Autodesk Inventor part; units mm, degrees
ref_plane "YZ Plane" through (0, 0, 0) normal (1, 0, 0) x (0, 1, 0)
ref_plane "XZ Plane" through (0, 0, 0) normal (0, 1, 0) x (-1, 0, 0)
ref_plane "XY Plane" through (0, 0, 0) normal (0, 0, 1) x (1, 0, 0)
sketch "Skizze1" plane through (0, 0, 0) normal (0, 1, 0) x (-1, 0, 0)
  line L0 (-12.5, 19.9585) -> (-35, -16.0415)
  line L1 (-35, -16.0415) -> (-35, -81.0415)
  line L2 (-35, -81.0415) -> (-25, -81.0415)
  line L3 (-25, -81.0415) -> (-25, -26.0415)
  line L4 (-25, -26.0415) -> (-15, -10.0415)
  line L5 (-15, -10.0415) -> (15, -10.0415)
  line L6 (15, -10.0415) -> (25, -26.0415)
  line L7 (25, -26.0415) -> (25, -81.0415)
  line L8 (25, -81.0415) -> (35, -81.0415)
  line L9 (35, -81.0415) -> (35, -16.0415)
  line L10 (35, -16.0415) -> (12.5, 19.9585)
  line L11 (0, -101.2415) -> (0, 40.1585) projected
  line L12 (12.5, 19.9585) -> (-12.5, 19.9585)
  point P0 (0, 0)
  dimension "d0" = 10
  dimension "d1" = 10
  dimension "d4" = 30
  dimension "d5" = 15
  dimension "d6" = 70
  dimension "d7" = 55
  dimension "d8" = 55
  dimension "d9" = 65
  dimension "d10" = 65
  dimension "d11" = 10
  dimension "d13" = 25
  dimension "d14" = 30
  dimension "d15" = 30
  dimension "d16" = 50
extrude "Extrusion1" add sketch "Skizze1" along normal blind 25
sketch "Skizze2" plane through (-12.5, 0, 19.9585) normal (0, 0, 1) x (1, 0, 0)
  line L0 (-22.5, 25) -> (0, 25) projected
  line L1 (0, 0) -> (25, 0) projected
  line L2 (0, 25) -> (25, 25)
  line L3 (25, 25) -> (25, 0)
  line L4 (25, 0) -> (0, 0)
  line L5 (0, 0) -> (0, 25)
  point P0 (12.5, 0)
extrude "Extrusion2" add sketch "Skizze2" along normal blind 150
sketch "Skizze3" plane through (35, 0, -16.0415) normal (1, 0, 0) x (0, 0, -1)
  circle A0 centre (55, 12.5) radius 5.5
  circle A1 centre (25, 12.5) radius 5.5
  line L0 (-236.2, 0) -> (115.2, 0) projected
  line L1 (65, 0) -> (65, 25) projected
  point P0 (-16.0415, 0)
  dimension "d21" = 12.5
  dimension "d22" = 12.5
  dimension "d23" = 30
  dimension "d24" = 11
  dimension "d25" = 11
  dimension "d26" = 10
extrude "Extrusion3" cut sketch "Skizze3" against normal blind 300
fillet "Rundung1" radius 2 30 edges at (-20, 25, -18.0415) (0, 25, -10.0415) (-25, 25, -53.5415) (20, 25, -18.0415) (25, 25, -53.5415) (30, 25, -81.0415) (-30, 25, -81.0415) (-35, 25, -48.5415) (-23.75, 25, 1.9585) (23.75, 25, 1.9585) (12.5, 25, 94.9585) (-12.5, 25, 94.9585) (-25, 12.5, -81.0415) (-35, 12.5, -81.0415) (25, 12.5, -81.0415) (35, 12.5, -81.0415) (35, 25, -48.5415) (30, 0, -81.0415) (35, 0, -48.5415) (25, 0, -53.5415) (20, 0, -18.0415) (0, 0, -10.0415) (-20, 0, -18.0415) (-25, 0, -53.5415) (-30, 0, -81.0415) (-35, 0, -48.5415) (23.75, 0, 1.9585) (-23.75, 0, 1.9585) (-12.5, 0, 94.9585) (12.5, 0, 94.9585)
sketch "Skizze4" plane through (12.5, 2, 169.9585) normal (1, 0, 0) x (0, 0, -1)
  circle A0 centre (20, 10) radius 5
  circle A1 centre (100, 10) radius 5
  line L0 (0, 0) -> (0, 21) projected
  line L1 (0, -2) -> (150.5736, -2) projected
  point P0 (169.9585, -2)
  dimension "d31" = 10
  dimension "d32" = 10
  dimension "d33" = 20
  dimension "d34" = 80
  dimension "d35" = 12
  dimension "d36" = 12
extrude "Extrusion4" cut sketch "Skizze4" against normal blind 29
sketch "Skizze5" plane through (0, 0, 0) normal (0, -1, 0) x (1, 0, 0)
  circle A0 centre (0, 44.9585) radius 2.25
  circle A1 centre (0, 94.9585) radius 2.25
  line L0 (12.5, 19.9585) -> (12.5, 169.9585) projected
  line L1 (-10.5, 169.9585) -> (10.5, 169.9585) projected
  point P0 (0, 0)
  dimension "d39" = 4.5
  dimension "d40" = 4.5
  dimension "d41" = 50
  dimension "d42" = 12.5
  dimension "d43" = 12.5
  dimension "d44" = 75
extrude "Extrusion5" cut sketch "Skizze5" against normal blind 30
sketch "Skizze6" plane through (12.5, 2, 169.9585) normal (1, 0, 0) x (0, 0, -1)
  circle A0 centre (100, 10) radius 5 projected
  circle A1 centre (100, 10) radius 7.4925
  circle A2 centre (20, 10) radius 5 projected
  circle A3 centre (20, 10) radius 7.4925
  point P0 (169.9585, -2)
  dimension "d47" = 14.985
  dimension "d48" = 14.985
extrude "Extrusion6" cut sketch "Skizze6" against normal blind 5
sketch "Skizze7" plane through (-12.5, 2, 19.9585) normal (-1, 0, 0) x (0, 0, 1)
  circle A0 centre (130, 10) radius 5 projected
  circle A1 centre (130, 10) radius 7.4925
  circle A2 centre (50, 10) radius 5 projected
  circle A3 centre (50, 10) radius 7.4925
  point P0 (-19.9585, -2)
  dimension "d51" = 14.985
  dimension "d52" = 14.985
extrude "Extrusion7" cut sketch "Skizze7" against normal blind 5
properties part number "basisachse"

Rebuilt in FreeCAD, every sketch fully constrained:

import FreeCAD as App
import Part
import Sketcher


def edges_at(feature, points):
    """Names of the edges that pass closest to the given points."""
    edges = feature.Shape.Edges
    near = lambda p: min(range(len(edges)), key=lambda i: edges[i].distToShape(Part.Vertex(*p))[0])
    return sorted({f"Edge{near(p) + 1}" for p in points})

doc = App.newDocument("Part")
params = doc.addObject("Spreadsheet::Sheet", "Params")
for row, (alias, value) in enumerate([
    ("sketch1_width", "10 mm"),
    ("sketch1_width2", "30 mm"),
    ("sketch1_width3", "25 mm"),
    ("sketch1_height", "65 mm"),
    ("sketch1_height2", "55 mm"),
    ("pad1_length", "25 mm"),
    ("sketch2_width", "25 mm"),
    ("pad2_length", "150 mm"),
    ("sketch3_diameter", "11 mm"),
    ("pocket1_length", "300 mm"),
    ("fillet_radius", "2 mm"),
    ("sketch4_diameter", "10 mm"),
    ("pocket2_length", "29 mm"),
    ("sketch5_diameter", "4.5 mm"),
    ("pocket3_length", "30 mm"),
    ("sketch6_diameter", "10 mm"),
    ("pocket4_length", "5 mm"),
    ("sketch7_diameter", "10 mm"),
    ("pocket5_length", "5 mm"),
], start=1):
    params.set(f"A{row}", alias)
    params.set(f"B{row}", "=" + value)
    params.setAlias(f"B{row}", alias)

body = doc.addObject("PartDesign::Body", "Body")

# Sketch on XZ plane
sketch1 = doc.addObject("Sketcher::SketchObject", "Sketch")
body.addObject(sketch1)
sketch1.AttachmentSupport = (doc.XZ_Plane, [""])
sketch1.MapMode = "FlatFace"
sketch1.addGeometry([
    Part.LineSegment(App.Vector(12.5, 19.9585, 0), App.Vector(35, -16.0415, 0)),  # 0
    Part.LineSegment(App.Vector(35, -16.0415, 0), App.Vector(35, -81.0415, 0)),  # 1
    Part.LineSegment(App.Vector(35, -81.0415, 0), App.Vector(25, -81.0415, 0)),  # 2
    Part.LineSegment(App.Vector(25, -81.0415, 0), App.Vector(25, -26.0415, 0)),  # 3
    Part.LineSegment(App.Vector(25, -26.0415, 0), App.Vector(15, -10.0415, 0)),  # 4
    Part.LineSegment(App.Vector(15, -10.0415, 0), App.Vector(-15, -10.0415, 0)),  # 5
    Part.LineSegment(App.Vector(-15, -10.0415, 0), App.Vector(-25, -26.0415, 0)),  # 6
    Part.LineSegment(App.Vector(-25, -26.0415, 0), App.Vector(-25, -81.0415, 0)),  # 7
    Part.LineSegment(App.Vector(-25, -81.0415, 0), App.Vector(-35, -81.0415, 0)),  # 8
    Part.LineSegment(App.Vector(-35, -81.0415, 0), App.Vector(-35, -16.0415, 0)),  # 9
    Part.LineSegment(App.Vector(-35, -16.0415, 0), App.Vector(-12.5, 19.9585, 0)),  # 10
    Part.LineSegment(App.Vector(-12.5, 19.9585, 0), App.Vector(12.5, 19.9585, 0)),  # 11
], False)
sketch1.addConstraint([
    Sketcher.Constraint("Coincident", 0, 2, 1, 1),
    Sketcher.Constraint("Coincident", 1, 2, 2, 1),
    Sketcher.Constraint("Coincident", 2, 2, 3, 1),
    Sketcher.Constraint("Coincident", 3, 2, 4, 1),
    Sketcher.Constraint("Coincident", 4, 2, 5, 1),
    Sketcher.Constraint("Coincident", 5, 2, 6, 1),
    Sketcher.Constraint("Coincident", 6, 2, 7, 1),
    Sketcher.Constraint("Coincident", 7, 2, 8, 1),
    Sketcher.Constraint("Coincident", 8, 2, 9, 1),
    Sketcher.Constraint("Coincident", 9, 2, 10, 1),
    Sketcher.Constraint("Coincident", 10, 2, 11, 1),
    Sketcher.Constraint("Coincident", 11, 2, 0, 1),
    Sketcher.Constraint("Vertical", 1),
    Sketcher.Constraint("Horizontal", 2),
    Sketcher.Constraint("Vertical", 3),
    Sketcher.Constraint("Horizontal", 5),
    Sketcher.Constraint("Vertical", 7),
    Sketcher.Constraint("Horizontal", 8),
    Sketcher.Constraint("Vertical", 9),
    Sketcher.Constraint("Horizontal", 11),
    Sketcher.Constraint("Symmetric", 3, 2, 6, 2, -2),
    Sketcher.Constraint("Symmetric", 1, 2, 8, 2, -2),
    Sketcher.Constraint("Parallel", 0, 4),
    Sketcher.Constraint("Parallel", 6, 10),
    Sketcher.Constraint("Horizontal", 0, 2, 9, 2),
    Sketcher.Constraint("Equal", 4, 6),
    Sketcher.Constraint("DistanceX", 2, 2, 2, 1, 10.0),
    Sketcher.Constraint("DistanceX", 5, 2, 5, 1, 30.0),
    Sketcher.Constraint("DistanceX", 11, 1, 11, 2, 25.0),
    Sketcher.Constraint("DistanceY", 1, 2, 1, 1, 65.0),
    Sketcher.Constraint("DistanceY", 3, 1, 3, 2, 55.0),
    Sketcher.Constraint("DistanceX", -1, 1, 2, 2, 25.0),
    Sketcher.Constraint("DistanceY", 5, 2, 10, 2, 30.0),
    Sketcher.Constraint("DistanceY", 0, 2, -1, 1, 16.0415),
])
sketch1.setExpression("Constraints[26]", "Params.sketch1_width")
sketch1.setExpression("Constraints[27]", "Params.sketch1_width2")
sketch1.setExpression("Constraints[28]", "Params.sketch1_width3")
sketch1.setExpression("Constraints[29]", "Params.sketch1_height")
sketch1.setExpression("Constraints[30]", "Params.sketch1_height2")
pad1 = doc.addObject("PartDesign::Pad", "Pad")
body.addObject(pad1)
pad1.Profile = sketch1
pad1.setExpression("Length", "Params.pad1_length")
pad1.Reversed = True

# Sketch on XY plane
sketch2 = doc.addObject("Sketcher::SketchObject", "Sketch001")
body.addObject(sketch2)
sketch2.AttachmentSupport = (doc.XY_Plane, [""])
sketch2.MapMode = "FlatFace"
sketch2.AttachmentOffset = App.Placement(App.Vector(0, 0, 19.9585), App.Rotation())
sketch2.addGeometry([
    Part.LineSegment(App.Vector(-12.5, 25, 0), App.Vector(-12.5, 0, 0)),
    Part.LineSegment(App.Vector(-12.5, 0, 0), App.Vector(12.5, 0, 0)),
    Part.LineSegment(App.Vector(12.5, 0, 0), App.Vector(12.5, 25, 0)),
    Part.LineSegment(App.Vector(12.5, 25, 0), App.Vector(-12.5, 25, 0)),
], False)
sketch2.addConstraint([
    Sketcher.Constraint("Coincident", 0, 2, 1, 1),
    Sketcher.Constraint("Coincident", 1, 2, 2, 1),
    Sketcher.Constraint("Coincident", 2, 2, 3, 1),
    Sketcher.Constraint("Coincident", 3, 2, 0, 1),
    Sketcher.Constraint("Vertical", 0),
    Sketcher.Constraint("Horizontal", 1),
    Sketcher.Constraint("Vertical", 2),
    Sketcher.Constraint("Horizontal", 3),
    Sketcher.Constraint("Symmetric", 0, 2, 1, 2, -1, 1),
    Sketcher.Constraint("Equal", 3, 0),
    Sketcher.Constraint("DistanceX", 1, 1, 1, 2, 25.0),
])
sketch2.setExpression("Constraints[10]", "Params.sketch2_width")
pad2 = doc.addObject("PartDesign::Pad", "Pad001")
body.addObject(pad2)
pad2.Profile = sketch2
pad2.setExpression("Length", "Params.pad2_length")

# Sketch on YZ plane
sketch3 = doc.addObject("Sketcher::SketchObject", "Sketch002")
body.addObject(sketch3)
sketch3.AttachmentSupport = (doc.YZ_Plane, [""])
sketch3.MapMode = "FlatFace"
sketch3.AttachmentOffset = App.Placement(App.Vector(0, 0, 35), App.Rotation())
sketch3.addGeometry([
    Part.Circle(App.Vector(12.5, -71.0415, 0), App.Vector(0, 0, 1), 5.5),
    Part.Circle(App.Vector(12.5, -41.0415, 0), App.Vector(0, 0, 1), 5.5),
], False)
sketch3.addConstraint([
    Sketcher.Constraint("Equal", 0, 1),
    Sketcher.Constraint("Vertical", 0, 3, 1, 3),
    Sketcher.Constraint("Diameter", 0, 11.0),
    Sketcher.Constraint("DistanceY", 0, 3, 1, 3, 30.0),
    Sketcher.Constraint("DistanceX", -1, 1, 0, 3, 12.5),
    Sketcher.Constraint("DistanceY", 0, 3, -1, 1, 71.0415),
])
sketch3.setExpression("Constraints[2]", "Params.sketch3_diameter")
pocket1 = doc.addObject("PartDesign::Pocket", "Pocket")
body.addObject(pocket1)
pocket1.Profile = sketch3
pocket1.setExpression("Length", "Params.pocket1_length")
doc.recompute()

fillet = doc.addObject("PartDesign::Fillet", "Fillet")
body.addObject(fillet)
fillet.Base = (pocket1, edges_at(pocket1, [
    (-20, 25, -18.041),
    (0, 25, -10.041),
    (-25, 25, -53.541),
    (20, 25, -18.041),
    (25, 25, -53.541),
    (30, 25, -81.041),
    (-30, 25, -81.041),
    (-35, 25, -48.541),
    (-23.75, 25, 1.958),
    (23.75, 25, 1.958),
    (12.5, 25, 94.959),
    (-12.5, 25, 94.959),
    (-25, 12.5, -81.041),
    (-35, 12.5, -81.041),
    (25, 12.5, -81.041),
    (35, 12.5, -81.041),
    (35, 25, -48.541),
    (30, 0, -81.041),
    (35, 0, -48.541),
    (25, 0, -53.541),
    (20, 0, -18.041),
    (0, 0, -10.041),
    (-20, 0, -18.041),
    (-25, 0, -53.541),
    (-30, 0, -81.041),
    (-35, 0, -48.541),
    (23.75, 0, 1.958),
    (-23.75, 0, 1.958),
    (-12.5, 0, 94.959),
    (12.5, 0, 94.959),
]))
fillet.setExpression("Radius", "Params.fillet_radius")

# Sketch on YZ plane
sketch4 = doc.addObject("Sketcher::SketchObject", "Sketch003")
body.addObject(sketch4)
sketch4.AttachmentSupport = (doc.YZ_Plane, [""])
sketch4.MapMode = "FlatFace"
sketch4.AttachmentOffset = App.Placement(App.Vector(0, 0, 12.5), App.Rotation())
sketch4.addGeometry([
    Part.Circle(App.Vector(12, 149.9585, 0), App.Vector(0, 0, 1), 5),
    Part.Circle(App.Vector(12, 69.9585, 0), App.Vector(0, 0, 1), 5),
], False)
sketch4.addConstraint([
    Sketcher.Constraint("Equal", 0, 1),
    Sketcher.Constraint("Vertical", 0, 3, 1, 3),
    Sketcher.Constraint("Diameter", 0, 10.0),
    Sketcher.Constraint("DistanceX", -1, 1, 0, 3, 12.0),
    Sketcher.Constraint("DistanceY", 1, 3, 0, 3, 80.0),
    Sketcher.Constraint("DistanceY", -1, 1, 0, 3, 149.9585),
])
sketch4.setExpression("Constraints[2]", "Params.sketch4_diameter")
pocket2 = doc.addObject("PartDesign::Pocket", "Pocket001")
body.addObject(pocket2)
pocket2.Profile = sketch4
pocket2.setExpression("Length", "Params.pocket2_length")

# Sketch on XZ plane
sketch5 = doc.addObject("Sketcher::SketchObject", "Sketch004")
body.addObject(sketch5)
sketch5.AttachmentSupport = (doc.XZ_Plane, [""])
sketch5.MapMode = "FlatFace"
sketch5.addGeometry([
    Part.Circle(App.Vector(0, 44.9585, 0), App.Vector(0, 0, 1), 2.25),
    Part.Circle(App.Vector(0, 94.9585, 0), App.Vector(0, 0, 1), 2.25),
], False)
sketch5.addConstraint([
    Sketcher.Constraint("Equal", 0, 1),
    Sketcher.Constraint("PointOnObject", 0, 3, -2),
    Sketcher.Constraint("PointOnObject", 1, 3, -2),
    Sketcher.Constraint("Diameter", 0, 4.5),
    Sketcher.Constraint("DistanceY", 0, 3, 1, 3, 50.0),
    Sketcher.Constraint("DistanceY", -1, 1, 0, 3, 44.9585),
])
sketch5.setExpression("Constraints[3]", "Params.sketch5_diameter")
pocket3 = doc.addObject("PartDesign::Pocket", "Pocket002")
body.addObject(pocket3)
pocket3.Profile = sketch5
pocket3.setExpression("Length", "Params.pocket3_length")

# Sketch on YZ plane
sketch6 = doc.addObject("Sketcher::SketchObject", "Sketch005")
body.addObject(sketch6)
sketch6.AttachmentSupport = (doc.YZ_Plane, [""])
sketch6.MapMode = "FlatFace"
sketch6.AttachmentOffset = App.Placement(App.Vector(0, 0, 12.5), App.Rotation())
sketch6.addGeometry([
    Part.Circle(App.Vector(12, 69.9585, 0), App.Vector(0, 0, 1), 7.4925),
    Part.Circle(App.Vector(12, 69.9585, 0), App.Vector(0, 0, 1), 5),
    Part.Circle(App.Vector(12, 149.9585, 0), App.Vector(0, 0, 1), 7.4925),
    Part.Circle(App.Vector(12, 149.9585, 0), App.Vector(0, 0, 1), 5),
], False)
sketch6.addConstraint([
    Sketcher.Constraint("Coincident", 1, 3, 0, 3),
    Sketcher.Constraint("Coincident", 3, 3, 2, 3),
    Sketcher.Constraint("Equal", 0, 2),
    Sketcher.Constraint("Equal", 1, 3),
    Sketcher.Constraint("Vertical", 1, 3, 2, 3),
    Sketcher.Constraint("Diameter", 0, 14.985),
    Sketcher.Constraint("Diameter", 1, 10.0),
    Sketcher.Constraint("DistanceX", -1, 1, 0, 3, 12.0),
    Sketcher.Constraint("DistanceY", 0, 3, 2, 3, 80.0),
    Sketcher.Constraint("DistanceY", -1, 1, 0, 3, 69.9585),
])
sketch6.setExpression("Constraints[6]", "Params.sketch6_diameter")
pocket4 = doc.addObject("PartDesign::Pocket", "Pocket003")
body.addObject(pocket4)
pocket4.Profile = sketch6
pocket4.setExpression("Length", "Params.pocket4_length")

# Sketch on YZ plane
sketch7 = doc.addObject("Sketcher::SketchObject", "Sketch006")
body.addObject(sketch7)
sketch7.AttachmentSupport = (doc.YZ_Plane, [""])
sketch7.MapMode = "FlatFace"
sketch7.AttachmentOffset = App.Placement(App.Vector(0, 0, -12.5), App.Rotation())
sketch7.addGeometry([
    Part.Circle(App.Vector(12, 149.9585, 0), App.Vector(0, 0, 1), 7.4925),
    Part.Circle(App.Vector(12, 149.9585, 0), App.Vector(0, 0, 1), 5),
    Part.Circle(App.Vector(12, 69.9585, 0), App.Vector(0, 0, 1), 7.4925),
    Part.Circle(App.Vector(12, 69.9585, 0), App.Vector(0, 0, 1), 5),
], False)
sketch7.addConstraint([
    Sketcher.Constraint("Coincident", 1, 3, 0, 3),
    Sketcher.Constraint("Coincident", 3, 3, 2, 3),
    Sketcher.Constraint("Equal", 0, 2),
    Sketcher.Constraint("Equal", 1, 3),
    Sketcher.Constraint("Vertical", 1, 3, 2, 3),
    Sketcher.Constraint("Diameter", 0, 14.985),
    Sketcher.Constraint("Diameter", 1, 10.0),
    Sketcher.Constraint("DistanceX", -1, 1, 0, 3, 12.0),
    Sketcher.Constraint("DistanceY", 2, 3, 0, 3, 80.0),
    Sketcher.Constraint("DistanceY", -1, 1, 0, 3, 149.9585),
])
sketch7.setExpression("Constraints[6]", "Params.sketch7_diameter")
pocket5 = doc.addObject("PartDesign::Pocket", "Pocket004")
body.addObject(pocket5)
pocket5.Profile = sketch7
pocket5.setExpression("Length", "Params.pocket5_length")
pocket5.Reversed = True

doc.recompute()
